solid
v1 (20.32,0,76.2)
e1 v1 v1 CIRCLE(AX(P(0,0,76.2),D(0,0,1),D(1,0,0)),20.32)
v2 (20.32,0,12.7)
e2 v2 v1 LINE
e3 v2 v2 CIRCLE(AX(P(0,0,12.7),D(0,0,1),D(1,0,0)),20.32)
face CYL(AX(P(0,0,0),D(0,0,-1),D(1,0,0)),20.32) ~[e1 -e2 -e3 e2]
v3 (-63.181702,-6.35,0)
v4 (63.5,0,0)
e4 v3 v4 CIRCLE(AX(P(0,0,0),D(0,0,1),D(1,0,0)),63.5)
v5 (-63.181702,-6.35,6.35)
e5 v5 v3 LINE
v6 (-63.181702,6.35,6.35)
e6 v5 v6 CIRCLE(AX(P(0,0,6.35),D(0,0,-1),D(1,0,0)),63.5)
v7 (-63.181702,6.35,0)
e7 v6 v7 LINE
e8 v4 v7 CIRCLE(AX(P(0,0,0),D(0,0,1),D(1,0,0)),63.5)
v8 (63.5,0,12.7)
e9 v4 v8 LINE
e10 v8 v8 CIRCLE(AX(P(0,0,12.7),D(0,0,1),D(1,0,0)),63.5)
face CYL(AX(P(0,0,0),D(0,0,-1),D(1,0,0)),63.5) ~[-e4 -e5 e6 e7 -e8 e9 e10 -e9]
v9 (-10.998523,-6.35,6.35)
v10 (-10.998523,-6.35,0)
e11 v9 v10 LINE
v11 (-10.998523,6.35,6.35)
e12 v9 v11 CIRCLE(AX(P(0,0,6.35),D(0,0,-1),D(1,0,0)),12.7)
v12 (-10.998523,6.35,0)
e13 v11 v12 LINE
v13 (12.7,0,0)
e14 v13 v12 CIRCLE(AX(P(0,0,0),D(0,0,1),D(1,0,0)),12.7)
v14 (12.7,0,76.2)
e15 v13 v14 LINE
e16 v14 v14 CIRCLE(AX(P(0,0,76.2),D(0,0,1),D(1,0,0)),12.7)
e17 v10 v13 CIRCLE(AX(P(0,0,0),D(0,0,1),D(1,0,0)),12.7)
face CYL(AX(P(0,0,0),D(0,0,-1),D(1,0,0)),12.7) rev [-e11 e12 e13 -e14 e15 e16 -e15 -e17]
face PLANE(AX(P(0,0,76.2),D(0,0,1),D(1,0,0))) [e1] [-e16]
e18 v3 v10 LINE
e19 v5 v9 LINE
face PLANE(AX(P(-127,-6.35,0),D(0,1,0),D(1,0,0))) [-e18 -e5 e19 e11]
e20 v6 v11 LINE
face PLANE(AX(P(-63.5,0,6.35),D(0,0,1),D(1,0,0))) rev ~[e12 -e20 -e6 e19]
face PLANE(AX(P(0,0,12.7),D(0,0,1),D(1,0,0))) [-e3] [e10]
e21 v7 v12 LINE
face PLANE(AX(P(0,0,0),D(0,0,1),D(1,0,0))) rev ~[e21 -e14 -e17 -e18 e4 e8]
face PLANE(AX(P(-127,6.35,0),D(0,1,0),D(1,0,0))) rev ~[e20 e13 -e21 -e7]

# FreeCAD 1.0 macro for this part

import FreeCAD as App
import Part
import Sketcher
from FreeCAD import Vector
Q = App.Units.Quantity


def add_polygon(sketch, points):
    """Adds a closed chain of lines whose ends are joined by coincident constraints."""
    first, n = sketch.GeometryCount, len(points)
    for a, b in zip(points, points[1:] + points[:1]):
        sketch.addGeometry(Part.LineSegment(App.Vector(*a, 0), App.Vector(*b, 0)), False)
    for i in range(n):
        sketch.addConstraint(Sketcher.Constraint("Coincident", first + i, 2, first + (i + 1) % n, 1))

doc = App.newDocument("Part")
body = doc.addObject("PartDesign::Body", "Body")

# Sketch on XY plane
sketch1 = body.newObject("Sketcher::SketchObject", "Sketch")
sketch1.AttachmentSupport = (doc.getObject("XY_Plane"), [""])
sketch1.MapMode = "FlatFace"
sketch1.addGeometry(Part.Circle(Vector(0, 0, 0), Vector(0, 0, 1), 64), False)
sketch1.addGeometry(Part.Circle(Vector(0, 0, 0), Vector(0, 0, 1), 20), False)
sketch1.addConstraint(Sketcher.Constraint("Coincident", 0, 3, -1, 1))
sketch1.addConstraint(Sketcher.Constraint("Coincident", 1, 3, -1, 1))
sketch1.addConstraint(Sketcher.Constraint("Diameter", 0, Q("5 in")))
sketch1.addConstraint(Sketcher.Constraint("Diameter", 1, Q("1.6 in")))
pad1 = body.newObject("PartDesign::Pad", "Pad")
pad1.Profile = sketch1
pad1.Length = Q("0.5 in")

# Sketch on XY plane
sketch2 = body.newObject("Sketcher::SketchObject", "Sketch001")
sketch2.AttachmentSupport = (doc.getObject("XY_Plane"), [""])
sketch2.MapMode = "FlatFace"
sketch2.addGeometry(Part.Circle(Vector(0, 0, 0), Vector(0, 0, 1), 20), False)
sketch2.addGeometry(Part.Circle(Vector(0, 0, 0), Vector(0, 0, 1), 13), False)
sketch2.addConstraint(Sketcher.Constraint("Coincident", 0, 3, -1, 1))
sketch2.addConstraint(Sketcher.Constraint("Coincident", 1, 3, -1, 1))
sketch2.addConstraint(Sketcher.Constraint("Diameter", 1, Q("1 in")))
sketch2.addConstraint(Sketcher.Constraint("Diameter", 0, Q("1.6 in")))
pad2 = body.newObject("PartDesign::Pad", "Pad001")
pad2.Profile = sketch2
pad2.Length = Q("3 in")

# Sketch on XY plane
sketch3 = body.newObject("Sketcher::SketchObject", "Sketch002")
sketch3.AttachmentSupport = (doc.getObject("XY_Plane"), [""])
sketch3.MapMode = "FlatFace"
add_polygon(sketch3, [(-127, 6), (-127, -6), (0, -6), (0, 6)])  # lines 0-3
sketch3.addConstraint(Sketcher.Constraint("Vertical", 0))
sketch3.addConstraint(Sketcher.Constraint("Horizontal", 1))
sketch3.addConstraint(Sketcher.Constraint("Vertical", 2))
sketch3.addConstraint(Sketcher.Constraint("Horizontal", 3))
sketch3.addConstraint(Sketcher.Constraint("Symmetric", 1, 2, 2, 2, -1, 1))
sketch3.addConstraint(Sketcher.Constraint("DistanceX", 1, 1, 1, 2, Q("5 in")))
sketch3.addConstraint(Sketcher.Constraint("DistanceY", 0, 2, 0, 1, Q("0.5 in")))
pocket1 = body.newObject("PartDesign::Pocket", "Pocket")
pocket1.Profile = sketch3
pocket1.Length = Q("0.25 in")
pocket1.Reversed = True

doc.recompute()
